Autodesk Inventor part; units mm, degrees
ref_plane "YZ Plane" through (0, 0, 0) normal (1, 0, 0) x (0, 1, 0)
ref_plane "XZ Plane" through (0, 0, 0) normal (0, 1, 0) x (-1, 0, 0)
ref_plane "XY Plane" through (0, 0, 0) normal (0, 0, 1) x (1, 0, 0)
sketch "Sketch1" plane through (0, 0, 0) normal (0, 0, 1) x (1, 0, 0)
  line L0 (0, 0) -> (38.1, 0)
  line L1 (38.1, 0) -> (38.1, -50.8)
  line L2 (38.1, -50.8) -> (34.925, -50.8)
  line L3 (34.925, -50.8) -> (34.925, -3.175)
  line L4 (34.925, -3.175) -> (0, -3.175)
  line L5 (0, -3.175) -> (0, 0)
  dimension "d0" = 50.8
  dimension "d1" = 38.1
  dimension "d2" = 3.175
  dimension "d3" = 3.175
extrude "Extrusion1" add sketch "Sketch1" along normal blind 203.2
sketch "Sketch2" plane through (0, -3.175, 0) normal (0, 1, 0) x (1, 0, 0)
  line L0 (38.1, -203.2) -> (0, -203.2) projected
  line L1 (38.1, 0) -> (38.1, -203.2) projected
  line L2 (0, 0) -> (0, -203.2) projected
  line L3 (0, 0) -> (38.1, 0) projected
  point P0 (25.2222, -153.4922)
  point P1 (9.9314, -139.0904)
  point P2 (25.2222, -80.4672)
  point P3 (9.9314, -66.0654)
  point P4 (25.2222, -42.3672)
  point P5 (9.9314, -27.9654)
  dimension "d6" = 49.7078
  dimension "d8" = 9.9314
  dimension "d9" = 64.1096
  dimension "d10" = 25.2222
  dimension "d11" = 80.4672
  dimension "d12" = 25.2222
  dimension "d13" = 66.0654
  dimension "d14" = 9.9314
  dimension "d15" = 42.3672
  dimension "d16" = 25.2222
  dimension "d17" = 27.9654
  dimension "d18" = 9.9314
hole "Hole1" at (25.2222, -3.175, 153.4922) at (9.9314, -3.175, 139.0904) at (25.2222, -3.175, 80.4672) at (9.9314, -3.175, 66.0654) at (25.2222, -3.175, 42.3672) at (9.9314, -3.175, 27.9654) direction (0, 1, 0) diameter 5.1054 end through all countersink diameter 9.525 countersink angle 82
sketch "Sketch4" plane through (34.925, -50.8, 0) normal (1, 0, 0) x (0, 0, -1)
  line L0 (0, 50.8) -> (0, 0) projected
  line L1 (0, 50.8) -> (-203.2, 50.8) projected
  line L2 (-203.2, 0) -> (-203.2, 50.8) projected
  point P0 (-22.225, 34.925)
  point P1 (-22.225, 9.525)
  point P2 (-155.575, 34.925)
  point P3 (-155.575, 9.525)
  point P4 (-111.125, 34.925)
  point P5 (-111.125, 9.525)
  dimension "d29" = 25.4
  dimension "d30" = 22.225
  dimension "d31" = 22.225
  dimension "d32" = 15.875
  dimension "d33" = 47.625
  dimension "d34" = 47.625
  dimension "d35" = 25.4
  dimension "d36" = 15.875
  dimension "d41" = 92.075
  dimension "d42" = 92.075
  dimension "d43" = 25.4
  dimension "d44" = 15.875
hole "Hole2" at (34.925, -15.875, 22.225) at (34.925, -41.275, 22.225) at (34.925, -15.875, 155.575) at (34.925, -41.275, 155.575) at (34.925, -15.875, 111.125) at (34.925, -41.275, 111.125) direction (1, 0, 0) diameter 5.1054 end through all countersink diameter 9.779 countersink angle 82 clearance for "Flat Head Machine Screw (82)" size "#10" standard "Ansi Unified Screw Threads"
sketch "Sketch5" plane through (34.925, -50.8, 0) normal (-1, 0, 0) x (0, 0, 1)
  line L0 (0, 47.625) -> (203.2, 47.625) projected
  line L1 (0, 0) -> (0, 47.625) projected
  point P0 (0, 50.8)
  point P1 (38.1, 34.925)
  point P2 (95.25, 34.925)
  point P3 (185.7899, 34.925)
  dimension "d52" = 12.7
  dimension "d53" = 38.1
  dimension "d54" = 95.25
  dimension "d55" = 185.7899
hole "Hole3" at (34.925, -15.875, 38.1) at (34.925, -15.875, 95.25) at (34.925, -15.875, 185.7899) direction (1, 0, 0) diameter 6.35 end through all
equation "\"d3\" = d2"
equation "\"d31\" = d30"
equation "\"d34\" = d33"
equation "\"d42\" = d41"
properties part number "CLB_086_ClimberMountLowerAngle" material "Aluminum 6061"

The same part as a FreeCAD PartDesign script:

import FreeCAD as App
import Part
import Sketcher
Q = App.Units.Quantity


def add_polygon(sketch, points):
    """Adds a closed chain of lines whose ends are joined by coincident constraints."""
    first, n = sketch.GeometryCount, len(points)
    for a, b in zip(points, points[1:] + points[:1]):
        sketch.addGeometry(Part.LineSegment(App.Vector(*a, 0), App.Vector(*b, 0)), False)
    for i in range(n):
        sketch.addConstraint(Sketcher.Constraint("Coincident", first + i, 2, first + (i + 1) % n, 1))

doc = App.newDocument("Part")
body = doc.addObject("PartDesign::Body", "Body")

sketch1 = body.newObject("Sketcher::SketchObject", "Sketch")
sketch1.AttachmentSupport = (doc.getObject("XY_Plane"), [""])
sketch1.MapMode = "FlatFace"
add_polygon(sketch1, [(38.1, 0), (0, 0), (0, -3.175), (34.925, -3.175), (34.925, -50.8), (38.1, -50.8)])
sketch1.addConstraint([
    Sketcher.Constraint("Horizontal", 0),
    Sketcher.Constraint("Vertical", 1),
    Sketcher.Constraint("Horizontal", 2),
    Sketcher.Constraint("Vertical", 3),
    Sketcher.Constraint("Horizontal", 4),
    Sketcher.Constraint("Vertical", 5),
    Sketcher.Constraint("Coincident", 0, 2, -1, 1),
    Sketcher.Constraint("Equal", 4, 1),
    Sketcher.Constraint("DistanceY", 5, 1, 5, 2, Q("2 in")),
    Sketcher.Constraint("DistanceX", 0, 2, 0, 1, Q("1.5 in")),
    Sketcher.Constraint("DistanceX", 4, 1, 4, 2, Q("0.125 in")),
])
pad1 = body.newObject("PartDesign::Pad", "Pad")
pad1.Profile = sketch1
pad1.Length = Q("8 in")

sketch2 = body.newObject("Sketcher::SketchObject", "Sketch001")
sketch2.AttachmentSupport = (doc.getObject("XZ_Plane"), [""])
sketch2.MapMode = "FlatFace"
sketch2.AttachmentOffset = App.Placement(App.Vector(0, 0, 0.125 * 25.4), App.Rotation())
sketch2.addGeometry([
    Part.Circle(App.Vector(25.2222, 153.4922, 0), App.Vector(0, 0, 1), 2.5527),
    Part.Circle(App.Vector(9.9314, 139.0904, 0), App.Vector(0, 0, 1), 2.5527),
    Part.Circle(App.Vector(25.2222, 80.4672, 0), App.Vector(0, 0, 1), 2.5527),
    Part.Circle(App.Vector(9.9314, 66.0654, 0), App.Vector(0, 0, 1), 2.5527),
    Part.Circle(App.Vector(25.2222, 42.3672, 0), App.Vector(0, 0, 1), 2.5527),
    Part.Circle(App.Vector(9.9314, 27.9654, 0), App.Vector(0, 0, 1), 2.5527),
], False)
sketch2.addConstraint([
    Sketcher.Constraint("Equal", 0, 1),
    Sketcher.Constraint("Equal", 1, 2),
    Sketcher.Constraint("Equal", 2, 3),
    Sketcher.Constraint("Equal", 3, 4),
    Sketcher.Constraint("Equal", 4, 5),
    Sketcher.Constraint("Vertical", 0, 3, 2, 3),
    Sketcher.Constraint("Vertical", 1, 3, 3, 3),
    Sketcher.Constraint("Vertical", 2, 3, 4, 3),
    Sketcher.Constraint("Vertical", 3, 3, 5, 3),
    Sketcher.Constraint("Diameter", 0, Q("0.201 in")),
    Sketcher.Constraint("DistanceY", 4, 3, 2, 3, Q("1.5 in")),
    Sketcher.Constraint("DistanceY", 5, 3, 3, 3, Q("1.5 in")),
    Sketcher.Constraint("DistanceX", -1, 1, 0, 3, Q("0.993 in")),
    Sketcher.Constraint("DistanceY", -1, 1, 0, 3, Q("6.043 in")),
    Sketcher.Constraint("DistanceX", -1, 1, 1, 3, Q("0.391 in")),
    Sketcher.Constraint("DistanceY", -1, 1, 1, 3, Q("5.476 in")),
    Sketcher.Constraint("DistanceY", -1, 1, 2, 3, Q("3.168 in")),
    Sketcher.Constraint("DistanceY", -1, 1, 3, 3, Q("2.601 in")),
])
doc.recompute()
hole = body.newObject("PartDesign::Hole", "Hole")
hole.Profile = sketch2
hole.ThreadType = "None"
hole.Diameter = Q("0.201 in")
hole.DepthType = "ThroughAll"
hole.HoleCutType = "Countersink"
hole.HoleCutDiameter = Q("0.375 in")
hole.HoleCutCountersinkAngle = 82

sketch3 = body.newObject("Sketcher::SketchObject", "Sketch002")
sketch3.AttachmentSupport = (doc.getObject("YZ_Plane"), [""])
sketch3.MapMode = "FlatFace"
sketch3.AttachmentOffset = App.Placement(App.Vector(0, 0, 1.375 * 25.4), App.Rotation())
sketch3.addGeometry([
    Part.Circle(App.Vector(-15.875, 22.225, 0), App.Vector(0, 0, 1), 2.5527),
    Part.Circle(App.Vector(-41.275, 22.225, 0), App.Vector(0, 0, 1), 2.5527),
    Part.Circle(App.Vector(-15.875, 155.575, 0), App.Vector(0, 0, 1), 2.5527),
    Part.Circle(App.Vector(-41.275, 155.575, 0), App.Vector(0, 0, 1), 2.5527),
    Part.Circle(App.Vector(-15.875, 111.125, 0), App.Vector(0, 0, 1), 2.5527),
    Part.Circle(App.Vector(-41.275, 111.125, 0), App.Vector(0, 0, 1), 2.5527),
], False)
sketch3.addConstraint([
    Sketcher.Constraint("Equal", 0, 1),
    Sketcher.Constraint("Equal", 1, 2),
    Sketcher.Constraint("Equal", 2, 3),
    Sketcher.Constraint("Equal", 3, 4),
    Sketcher.Constraint("Equal", 4, 5),
    Sketcher.Constraint("Horizontal", 0, 3, 1, 3),
    Sketcher.Constraint("Horizontal", 2, 3, 3, 3),
    Sketcher.Constraint("Horizontal", 4, 3, 5, 3),
    Sketcher.Constraint("Vertical", 0, 3, 2, 3),
    Sketcher.Constraint("Vertical", 1, 3, 3, 3),
    Sketcher.Constraint("Vertical", 2, 3, 4, 3),
    Sketcher.Constraint("Vertical", 3, 3, 5, 3),
    Sketcher.Constraint("Diameter", 0, Q("0.201 in")),
    Sketcher.Constraint("DistanceX", 1, 3, 0, 3, Q("1 in")),
    Sketcher.Constraint("DistanceY", 0, 3, 4, 3, Q("3.5 in")),
    Sketcher.Constraint("DistanceY", 0, 3, 2, 3, Q("5.25 in")),
    Sketcher.Constraint("DistanceX", 0, 3, -1, 1, Q("0.625 in")),
    Sketcher.Constraint("DistanceY", -1, 1, 0, 3, Q("0.875 in")),
])
doc.recompute()
hole2 = body.newObject("PartDesign::Hole", "Hole001")
hole2.Profile = sketch3
hole2.ThreadType = "None"
hole2.Diameter = Q("0.201 in")
hole2.DepthType = "ThroughAll"
hole2.HoleCutType = "Countersink"
hole2.HoleCutDiameter = Q("0.385 in")
hole2.HoleCutCountersinkAngle = 82
hole2.Reversed = True

sketch4 = body.newObject("Sketcher::SketchObject", "Sketch003")
sketch4.AttachmentSupport = (doc.getObject("YZ_Plane"), [""])
sketch4.MapMode = "FlatFace"
sketch4.AttachmentOffset = App.Placement(App.Vector(0, 0, 1.375 * 25.4), App.Rotation())
sketch4.addGeometry([
    Part.Circle(App.Vector(-15.875, 38.1, 0), App.Vector(0, 0, 1), 3.175),
    Part.Circle(App.Vector(-15.875, 95.25, 0), App.Vector(0, 0, 1), 3.175),
    Part.Circle(App.Vector(-15.875, 185.7899, 0), App.Vector(0, 0, 1), 3.175),
], False)
sketch4.addConstraint([
    Sketcher.Constraint("Equal", 0, 1),
    Sketcher.Constraint("Equal", 1, 2),
    Sketcher.Constraint("Vertical", 0, 3, 1, 3),
    Sketcher.Constraint("Vertical", 1, 3, 2, 3),
    Sketcher.Constraint("Diameter", 0, Q("0.25 in")),
    Sketcher.Constraint("DistanceY", -1, 1, 0, 3, Q("1.5 in")),
    Sketcher.Constraint("DistanceY", -1, 1, 1, 3, Q("3.75 in")),
    Sketcher.Constraint("DistanceX", 0, 3, -1, 1, Q("0.625 in")),
    Sketcher.Constraint("DistanceY", -1, 1, 2, 3, 185.79),
])
doc.recompute()
hole3 = body.newObject("PartDesign::Hole", "Hole002")
hole3.Profile = sketch4
hole3.ThreadType = "None"
hole3.Diameter = Q("0.25 in")
hole3.DepthType = "ThroughAll"
hole3.Reversed = True

doc.recompute()
